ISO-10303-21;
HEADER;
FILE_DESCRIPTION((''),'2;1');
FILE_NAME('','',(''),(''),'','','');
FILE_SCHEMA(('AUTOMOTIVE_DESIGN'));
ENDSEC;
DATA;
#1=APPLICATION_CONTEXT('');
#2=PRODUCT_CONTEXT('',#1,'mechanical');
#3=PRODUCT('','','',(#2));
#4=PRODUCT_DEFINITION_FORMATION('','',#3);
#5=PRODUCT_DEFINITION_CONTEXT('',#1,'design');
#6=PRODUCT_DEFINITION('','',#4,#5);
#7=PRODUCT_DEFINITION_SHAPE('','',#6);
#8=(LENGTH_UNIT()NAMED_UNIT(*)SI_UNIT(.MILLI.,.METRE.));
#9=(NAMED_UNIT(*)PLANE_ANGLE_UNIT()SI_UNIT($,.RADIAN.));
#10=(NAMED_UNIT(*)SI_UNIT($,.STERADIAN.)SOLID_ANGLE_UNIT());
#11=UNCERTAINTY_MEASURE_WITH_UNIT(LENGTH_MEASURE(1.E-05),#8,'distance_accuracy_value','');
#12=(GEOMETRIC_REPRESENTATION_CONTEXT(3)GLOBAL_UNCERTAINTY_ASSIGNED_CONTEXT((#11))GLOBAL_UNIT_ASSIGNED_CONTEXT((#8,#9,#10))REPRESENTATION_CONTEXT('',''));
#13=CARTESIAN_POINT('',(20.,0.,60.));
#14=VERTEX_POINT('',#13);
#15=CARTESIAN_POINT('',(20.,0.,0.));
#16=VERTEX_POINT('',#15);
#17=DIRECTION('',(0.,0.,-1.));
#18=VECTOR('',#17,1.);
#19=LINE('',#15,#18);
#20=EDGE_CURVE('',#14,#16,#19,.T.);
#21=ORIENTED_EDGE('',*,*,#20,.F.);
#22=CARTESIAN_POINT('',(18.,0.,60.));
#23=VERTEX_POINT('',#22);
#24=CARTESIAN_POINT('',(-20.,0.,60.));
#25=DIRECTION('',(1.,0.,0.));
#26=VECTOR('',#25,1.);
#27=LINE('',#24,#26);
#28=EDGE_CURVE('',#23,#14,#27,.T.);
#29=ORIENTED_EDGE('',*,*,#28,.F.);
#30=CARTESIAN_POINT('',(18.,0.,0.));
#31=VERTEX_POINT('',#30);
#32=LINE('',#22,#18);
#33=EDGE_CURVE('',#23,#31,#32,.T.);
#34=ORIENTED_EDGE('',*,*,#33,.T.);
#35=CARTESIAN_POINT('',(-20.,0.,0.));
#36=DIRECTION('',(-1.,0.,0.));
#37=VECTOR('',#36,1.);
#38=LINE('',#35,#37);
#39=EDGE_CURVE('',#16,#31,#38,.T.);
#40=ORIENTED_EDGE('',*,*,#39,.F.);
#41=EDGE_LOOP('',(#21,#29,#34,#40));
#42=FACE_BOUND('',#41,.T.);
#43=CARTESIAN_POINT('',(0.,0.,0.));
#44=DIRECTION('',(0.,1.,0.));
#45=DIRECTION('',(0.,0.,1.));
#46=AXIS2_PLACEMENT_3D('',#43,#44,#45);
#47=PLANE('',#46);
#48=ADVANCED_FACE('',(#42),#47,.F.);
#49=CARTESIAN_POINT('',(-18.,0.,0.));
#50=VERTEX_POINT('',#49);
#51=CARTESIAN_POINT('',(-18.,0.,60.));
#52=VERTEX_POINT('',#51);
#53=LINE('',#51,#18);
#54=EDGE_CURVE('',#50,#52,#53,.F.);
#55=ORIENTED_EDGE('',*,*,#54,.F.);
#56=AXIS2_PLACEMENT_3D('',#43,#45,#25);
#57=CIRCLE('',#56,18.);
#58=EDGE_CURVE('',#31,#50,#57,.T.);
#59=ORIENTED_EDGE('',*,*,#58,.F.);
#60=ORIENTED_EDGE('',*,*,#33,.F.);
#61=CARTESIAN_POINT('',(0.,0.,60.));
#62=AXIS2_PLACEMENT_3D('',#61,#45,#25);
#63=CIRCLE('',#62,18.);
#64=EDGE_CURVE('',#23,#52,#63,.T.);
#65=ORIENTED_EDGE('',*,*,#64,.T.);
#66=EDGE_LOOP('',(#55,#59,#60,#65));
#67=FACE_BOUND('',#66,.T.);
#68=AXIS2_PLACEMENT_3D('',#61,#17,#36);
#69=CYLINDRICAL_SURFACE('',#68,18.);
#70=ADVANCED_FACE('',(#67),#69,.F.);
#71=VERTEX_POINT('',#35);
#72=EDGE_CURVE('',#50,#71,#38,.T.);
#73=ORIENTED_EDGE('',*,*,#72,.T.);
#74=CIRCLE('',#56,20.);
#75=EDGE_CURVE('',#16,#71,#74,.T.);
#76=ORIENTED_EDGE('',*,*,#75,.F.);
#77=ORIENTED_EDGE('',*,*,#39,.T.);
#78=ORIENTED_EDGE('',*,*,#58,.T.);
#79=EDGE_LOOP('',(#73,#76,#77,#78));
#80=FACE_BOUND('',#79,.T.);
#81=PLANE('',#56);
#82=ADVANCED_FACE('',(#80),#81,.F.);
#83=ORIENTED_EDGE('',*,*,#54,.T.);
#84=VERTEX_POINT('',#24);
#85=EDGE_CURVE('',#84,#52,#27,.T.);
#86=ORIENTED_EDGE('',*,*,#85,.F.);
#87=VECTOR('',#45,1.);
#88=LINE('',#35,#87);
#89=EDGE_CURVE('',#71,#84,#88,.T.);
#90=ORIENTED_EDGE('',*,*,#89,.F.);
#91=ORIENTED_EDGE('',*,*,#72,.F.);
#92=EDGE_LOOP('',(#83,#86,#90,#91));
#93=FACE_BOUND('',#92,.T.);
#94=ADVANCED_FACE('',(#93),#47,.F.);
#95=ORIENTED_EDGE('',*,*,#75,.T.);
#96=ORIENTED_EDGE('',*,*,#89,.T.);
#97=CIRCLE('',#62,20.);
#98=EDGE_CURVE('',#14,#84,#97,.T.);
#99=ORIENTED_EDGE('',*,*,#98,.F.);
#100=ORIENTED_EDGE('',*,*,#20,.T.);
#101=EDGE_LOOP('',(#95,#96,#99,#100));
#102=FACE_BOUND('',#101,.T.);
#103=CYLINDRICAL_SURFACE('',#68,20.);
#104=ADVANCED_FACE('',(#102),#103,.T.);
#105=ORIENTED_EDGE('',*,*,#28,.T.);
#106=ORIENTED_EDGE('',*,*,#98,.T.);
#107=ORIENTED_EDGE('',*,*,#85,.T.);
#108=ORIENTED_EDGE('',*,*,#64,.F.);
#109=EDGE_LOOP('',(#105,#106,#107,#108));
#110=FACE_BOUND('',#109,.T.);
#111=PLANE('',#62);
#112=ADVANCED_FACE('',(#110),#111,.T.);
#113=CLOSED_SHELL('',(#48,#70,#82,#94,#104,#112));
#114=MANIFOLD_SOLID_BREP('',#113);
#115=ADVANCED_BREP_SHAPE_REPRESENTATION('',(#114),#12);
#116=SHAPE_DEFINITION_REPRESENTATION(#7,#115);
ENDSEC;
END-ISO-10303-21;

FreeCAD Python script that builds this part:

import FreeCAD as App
import Part
import Sketcher


def add_polygon(sketch, points):
    """Adds a closed chain of lines whose ends are joined by coincident constraints."""
    first, n = sketch.GeometryCount, len(points)
    for a, b in zip(points, points[1:] + points[:1]):
        sketch.addGeometry(Part.LineSegment(App.Vector(*a, 0), App.Vector(*b, 0)), False)
    for i in range(n):
        sketch.addConstraint(Sketcher.Constraint("Coincident", first + i, 2, first + (i + 1) % n, 1))

doc = App.newDocument("Part")
body = doc.addObject("PartDesign::Body", "Body")

# Sketch on XY plane
sketch1 = doc.addObject("Sketcher::SketchObject", "Sketch")
body.addObject(sketch1)
sketch1.AttachmentSupport = (doc.XY_Plane, [""])
sketch1.MapMode = "FlatFace"
sketch1.addGeometry(Part.Circle(App.Vector(0, 0, 0), App.Vector(0, 0, 1), 20), False)
sketch1.addGeometry(Part.Circle(App.Vector(0, 0, 0), App.Vector(0, 0, 1), 18), False)
sketch1.addConstraint(Sketcher.Constraint("Coincident", 0, 3, -1, 1))
sketch1.addConstraint(Sketcher.Constraint("Coincident", 1, 3, -1, 1))
sketch1.addConstraint(Sketcher.Constraint("Diameter", 0, 40.0))
sketch1.addConstraint(Sketcher.Constraint("Diameter", 1, 36.0))
pad1 = doc.addObject("PartDesign::Pad", "Pad")
body.addObject(pad1)
pad1.Profile = sketch1
pad1.Length = 60

# Sketch on XZ plane
sketch2 = doc.addObject("Sketcher::SketchObject", "Sketch001")
body.addObject(sketch2)
sketch2.AttachmentSupport = (doc.XZ_Plane, [""])
sketch2.MapMode = "FlatFace"
add_polygon(sketch2, [(-20, 0), (-20, 60), (20, 60), (20, 0)])  # lines 0-3
sketch2.addConstraint(Sketcher.Constraint("Vertical", 0))
sketch2.addConstraint(Sketcher.Constraint("Horizontal", 1))
sketch2.addConstraint(Sketcher.Constraint("Vertical", 2))
sketch2.addConstraint(Sketcher.Constraint("Horizontal", 3))
sketch2.addConstraint(Sketcher.Constraint("Symmetric", 2, 2, 3, 2, -1, 1))
sketch2.addConstraint(Sketcher.Constraint("DistanceX", 1, 1, 1, 2, 40.0))
sketch2.addConstraint(Sketcher.Constraint("DistanceY", 0, 1, 0, 2, 60.0))
pocket1 = doc.addObject("PartDesign::Pocket", "Pocket")
body.addObject(pocket1)
pocket1.Profile = sketch2
pocket1.Length = 60
pocket1.Reversed = True

doc.recompute()
